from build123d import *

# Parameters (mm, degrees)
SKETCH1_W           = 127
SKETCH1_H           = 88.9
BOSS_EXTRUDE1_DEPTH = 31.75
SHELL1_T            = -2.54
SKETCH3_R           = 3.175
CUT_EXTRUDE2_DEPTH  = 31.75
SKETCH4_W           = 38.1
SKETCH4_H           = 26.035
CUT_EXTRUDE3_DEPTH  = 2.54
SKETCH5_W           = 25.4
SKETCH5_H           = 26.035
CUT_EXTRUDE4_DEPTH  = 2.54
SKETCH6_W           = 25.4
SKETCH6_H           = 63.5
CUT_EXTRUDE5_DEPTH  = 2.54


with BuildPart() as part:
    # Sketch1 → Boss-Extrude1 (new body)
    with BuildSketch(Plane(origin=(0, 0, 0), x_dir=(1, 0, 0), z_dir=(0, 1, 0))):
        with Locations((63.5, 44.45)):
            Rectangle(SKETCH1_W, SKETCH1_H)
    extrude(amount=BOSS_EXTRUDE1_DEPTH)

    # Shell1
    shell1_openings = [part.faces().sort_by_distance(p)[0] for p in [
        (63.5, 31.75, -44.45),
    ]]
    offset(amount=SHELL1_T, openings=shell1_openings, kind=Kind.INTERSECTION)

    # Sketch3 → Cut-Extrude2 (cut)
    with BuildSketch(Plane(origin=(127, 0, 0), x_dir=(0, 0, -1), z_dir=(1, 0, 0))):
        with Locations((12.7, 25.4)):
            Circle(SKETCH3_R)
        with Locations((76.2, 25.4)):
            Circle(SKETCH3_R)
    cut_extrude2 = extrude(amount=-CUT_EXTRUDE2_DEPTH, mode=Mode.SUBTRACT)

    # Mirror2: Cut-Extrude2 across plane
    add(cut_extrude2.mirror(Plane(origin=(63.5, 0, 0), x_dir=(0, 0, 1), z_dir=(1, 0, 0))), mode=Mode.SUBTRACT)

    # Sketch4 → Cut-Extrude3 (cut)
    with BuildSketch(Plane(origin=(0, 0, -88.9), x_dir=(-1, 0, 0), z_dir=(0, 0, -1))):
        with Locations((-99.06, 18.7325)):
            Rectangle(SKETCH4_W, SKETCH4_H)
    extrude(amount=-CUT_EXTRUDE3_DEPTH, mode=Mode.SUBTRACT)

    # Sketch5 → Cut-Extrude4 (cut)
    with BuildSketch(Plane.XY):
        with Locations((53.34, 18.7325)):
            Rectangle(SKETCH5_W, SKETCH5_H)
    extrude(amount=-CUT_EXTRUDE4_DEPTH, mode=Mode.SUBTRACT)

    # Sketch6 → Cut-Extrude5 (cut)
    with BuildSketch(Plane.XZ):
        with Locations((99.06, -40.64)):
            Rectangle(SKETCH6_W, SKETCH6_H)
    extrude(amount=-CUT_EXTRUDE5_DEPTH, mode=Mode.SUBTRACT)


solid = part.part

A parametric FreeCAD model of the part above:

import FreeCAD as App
import Part
import Sketcher
Q = App.Units.Quantity


def faces_at(feature, points):
    """Names of the faces that lie closest to the given points."""
    faces = feature.Shape.Faces
    near = lambda p: min(range(len(faces)), key=lambda i: faces[i].distToShape(Part.Vertex(*p))[0])
    return sorted({f"Face{near(p) + 1}" for p in points})


def add_polygon(sketch, points):
    """Adds a closed chain of lines whose ends are joined by coincident constraints."""
    first, n = sketch.GeometryCount, len(points)
    for a, b in zip(points, points[1:] + points[:1]):
        sketch.addGeometry(Part.LineSegment(App.Vector(*a, 0), App.Vector(*b, 0)), False)
    for i in range(n):
        sketch.addConstraint(Sketcher.Constraint("Coincident", first + i, 2, first + (i + 1) % n, 1))

doc = App.newDocument("Part")
body = doc.addObject("PartDesign::Body", "Body")

sketch1 = body.newObject("Sketcher::SketchObject", "Sketch")
sketch1.AttachmentSupport = (doc.getObject("XZ_Plane"), [""])
sketch1.MapMode = "FlatFace"
add_polygon(sketch1, [(0, -89), (0, 0), (127, 0), (127, -89)])
sketch1.addConstraint([
    Sketcher.Constraint("Vertical", 0),
    Sketcher.Constraint("Horizontal", 1),
    Sketcher.Constraint("Vertical", 2),
    Sketcher.Constraint("Horizontal", 3),
    Sketcher.Constraint("Coincident", 0, 2, -1, 1),
    Sketcher.Constraint("DistanceX", 1, 1, 1, 2, Q("5 in")),
    Sketcher.Constraint("DistanceY", 0, 1, 0, 2, Q("3.5 in")),
])
pad1 = body.newObject("PartDesign::Pad", "Pad")
pad1.Profile = sketch1
pad1.Length = Q("1.25 in")
pad1.Reversed = True
doc.recompute()

thickness = body.newObject("PartDesign::Thickness", "Thickness")
thickness.Base = (pad1, faces_at(pad1, [(63.5, 31.75, -44.45)]))
thickness.Value = Q("0.1 in")
thickness.Reversed = True
thickness.Join = "Intersection"

sketch2 = body.newObject("Sketcher::SketchObject", "Sketch001")
sketch2.AttachmentSupport = (doc.getObject("YZ_Plane"), [""])
sketch2.MapMode = "FlatFace"
sketch2.AttachmentOffset = App.Placement(App.Vector(0, 0, 5 * 25.4), App.Rotation())
sketch2.addGeometry([
    Part.Circle(App.Vector(25.4, -12.7, 0), App.Vector(0, 0, 1), 3.2),
    Part.Circle(App.Vector(25.4, -76.2, 0), App.Vector(0, 0, 1), 3.2),
], False)
sketch2.addConstraint([
    Sketcher.Constraint("Equal", 0, 1),
    Sketcher.Constraint("Vertical", 0, 3, 1, 3),
    Sketcher.Constraint("Diameter", 0, Q("0.25 in")),
    Sketcher.Constraint("DistanceX", -1, 1, 0, 3, Q("1 in")),
    Sketcher.Constraint("DistanceY", 1, 3, -1, 1, Q("3 in")),
    Sketcher.Constraint("DistanceY", 0, 3, -1, 1, Q("0.5 in")),
])
pocket1 = body.newObject("PartDesign::Pocket", "Pocket")
pocket1.Profile = sketch2
pocket1.Length = Q("1.25 in")
doc.recompute()

datumplane = body.newObject("PartDesign::Plane", "DatumPlane")
datumplane.AttachmentSupport = (doc.getObject("YZ_Plane"), [""])
datumplane.MapMode = "FlatFace"
datumplane.AttachmentOffset = App.Placement(App.Vector(0, 0, 2.5 * 25.4), App.Rotation())
mirrored = body.newObject("PartDesign::Mirrored", "Mirrored")
mirrored.Originals = [pocket1]
mirrored.MirrorPlane = (datumplane, [""])
body.Tip = mirrored

sketch3 = body.newObject("Sketcher::SketchObject", "Sketch002")
sketch3.AttachmentSupport = (doc.getObject("XY_Plane"), [""])
sketch3.MapMode = "FlatFace"
sketch3.AttachmentOffset = App.Placement(App.Vector(0, 0, -3.5 * 25.4), App.Rotation())
add_polygon(sketch3, [(118, 32), (118, 6), (80, 6), (80, 32)])
sketch3.addConstraint([
    Sketcher.Constraint("Vertical", 0),
    Sketcher.Constraint("Horizontal", 1),
    Sketcher.Constraint("Vertical", 2),
    Sketcher.Constraint("Horizontal", 3),
    Sketcher.Constraint("DistanceX", 1, 2, 1, 1, Q("1.5 in")),
    Sketcher.Constraint("DistanceY", 0, 2, 0, 1, Q("1.025 in")),
    Sketcher.Constraint("DistanceX", -1, 1, 0, 2, Q("4.65 in")),
    Sketcher.Constraint("DistanceY", -1, 1, 2, 2, Q("1.25 in")),
])
pocket2 = body.newObject("PartDesign::Pocket", "Pocket001")
pocket2.Profile = sketch3
pocket2.Length = Q("0.1 in")
pocket2.Reversed = True

sketch4 = body.newObject("Sketcher::SketchObject", "Sketch003")
sketch4.AttachmentSupport = (doc.getObject("XY_Plane"), [""])
sketch4.MapMode = "FlatFace"
add_polygon(sketch4, [(41, 32), (41, 6), (66, 6), (66, 32)])
sketch4.addConstraint([
    Sketcher.Constraint("Vertical", 0),
    Sketcher.Constraint("Horizontal", 1),
    Sketcher.Constraint("Vertical", 2),
    Sketcher.Constraint("Horizontal", 3),
    Sketcher.Constraint("DistanceX", 1, 1, 1, 2, Q("1 in")),
    Sketcher.Constraint("DistanceX", -1, 1, 0, 2, Q("1.6 in")),
    Sketcher.Constraint("DistanceY", 0, 2, 0, 1, Q("1.025 in")),
    Sketcher.Constraint("DistanceY", -1, 1, 2, 2, Q("1.25 in")),
])
pocket3 = body.newObject("PartDesign::Pocket", "Pocket002")
pocket3.Profile = sketch4
pocket3.Length = Q("0.1 in")

sketch5 = body.newObject("Sketcher::SketchObject", "Sketch004")
sketch5.AttachmentSupport = (doc.getObject("XZ_Plane"), [""])
sketch5.MapMode = "FlatFace"
add_polygon(sketch5, [(86, -9), (86, -72), (112, -72), (112, -9)])
sketch5.addConstraint([
    Sketcher.Constraint("Vertical", 0),
    Sketcher.Constraint("Horizontal", 1),
    Sketcher.Constraint("Vertical", 2),
    Sketcher.Constraint("Horizontal", 3),
    Sketcher.Constraint("DistanceX", 1, 1, 1, 2, Q("1 in")),
    Sketcher.Constraint("DistanceY", 0, 2, 0, 1, Q("2.5 in")),
    Sketcher.Constraint("DistanceX", -1, 1, 0, 2, Q("3.4 in")),
    Sketcher.Constraint("DistanceY", 0, 2, -1, 1, Q("2.85 in")),
])
pocket4 = body.newObject("PartDesign::Pocket", "Pocket003")
pocket4.Profile = sketch5
pocket4.Length = Q("0.1 in")

doc.recompute()
